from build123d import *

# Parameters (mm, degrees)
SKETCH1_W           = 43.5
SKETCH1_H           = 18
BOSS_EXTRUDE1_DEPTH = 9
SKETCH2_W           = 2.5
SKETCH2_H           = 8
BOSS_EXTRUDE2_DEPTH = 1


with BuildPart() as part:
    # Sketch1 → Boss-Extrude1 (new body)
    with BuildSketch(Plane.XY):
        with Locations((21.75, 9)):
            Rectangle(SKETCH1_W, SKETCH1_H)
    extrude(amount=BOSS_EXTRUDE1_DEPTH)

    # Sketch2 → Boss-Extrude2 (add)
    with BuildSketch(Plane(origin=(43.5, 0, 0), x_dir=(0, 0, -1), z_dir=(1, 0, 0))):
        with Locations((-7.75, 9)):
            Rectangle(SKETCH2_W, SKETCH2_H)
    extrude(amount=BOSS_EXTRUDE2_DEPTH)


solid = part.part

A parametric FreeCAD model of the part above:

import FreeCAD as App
import Part
import Sketcher
Q = App.Units.Quantity

doc = App.newDocument("Part")
body = doc.addObject("PartDesign::Body", "Body")

# Sketch on XY plane
sketch1 = body.newObject("Sketcher::SketchObject", "Sketch")
sketch1.AttachmentSupport = (doc.getObject("XY_Plane"), [""])
sketch1.MapMode = "FlatFace"
sketch1.addGeometry([
    Part.LineSegment(App.Vector(0, 18, 0), App.Vector(0, 0, 0)),
    Part.LineSegment(App.Vector(0, 0, 0), App.Vector(44, 0, 0)),
    Part.LineSegment(App.Vector(44, 0, 0), App.Vector(44, 18, 0)),
    Part.LineSegment(App.Vector(44, 18, 0), App.Vector(0, 18, 0)),
], False)
sketch1.addConstraint([
    Sketcher.Constraint("Coincident", 0, 2, 1, 1),
    Sketcher.Constraint("Coincident", 1, 2, 2, 1),
    Sketcher.Constraint("Coincident", 2, 2, 3, 1),
    Sketcher.Constraint("Coincident", 3, 2, 0, 1),
    Sketcher.Constraint("Vertical", 0),
    Sketcher.Constraint("Horizontal", 1),
    Sketcher.Constraint("Vertical", 2),
    Sketcher.Constraint("Horizontal", 3),
    Sketcher.Constraint("Coincident", 0, 2, -1, 1),
    Sketcher.Constraint("DistanceY", 0, 2, 0, 1, Q("18 mm")),
    Sketcher.Constraint("DistanceX", 1, 1, 1, 2, Q("43.5 mm")),
])
pad1 = body.newObject("PartDesign::Pad", "Pad")
pad1.Profile = sketch1
pad1.Length = 9

# Sketch on YZ plane
sketch2 = body.newObject("Sketcher::SketchObject", "Sketch001")
sketch2.AttachmentSupport = (doc.getObject("YZ_Plane"), [""])
sketch2.MapMode = "FlatFace"
sketch2.AttachmentOffset = App.Placement(App.Vector(0, 0, 43.5), App.Rotation())
sketch2.addGeometry([
    Part.LineSegment(App.Vector(13, 9, 0), App.Vector(5, 9, 0)),
    Part.LineSegment(App.Vector(5, 9, 0), App.Vector(5, 6.5, 0)),
    Part.LineSegment(App.Vector(5, 6.5, 0), App.Vector(13, 6.5, 0)),
    Part.LineSegment(App.Vector(13, 6.5, 0), App.Vector(13, 9, 0)),
], False)
sketch2.addConstraint([
    Sketcher.Constraint("Coincident", 0, 2, 1, 1),
    Sketcher.Constraint("Coincident", 1, 2, 2, 1),
    Sketcher.Constraint("Coincident", 2, 2, 3, 1),
    Sketcher.Constraint("Coincident", 3, 2, 0, 1),
    Sketcher.Constraint("Horizontal", 0),
    Sketcher.Constraint("Vertical", 1),
    Sketcher.Constraint("Horizontal", 2),
    Sketcher.Constraint("Vertical", 3),
    Sketcher.Constraint("DistanceX", 0, 2, 0, 1, Q("8 mm")),
    Sketcher.Constraint("DistanceY", 1, 2, 1, 1, Q("2.5 mm")),
    Sketcher.Constraint("DistanceX", -1, 1, 0, 2, Q("5 mm")),
    Sketcher.Constraint("DistanceY", -1, 1, 0, 2, Q("9 mm")),
])
pad2 = body.newObject("PartDesign::Pad", "Pad001")
pad2.Profile = sketch2
pad2.Length = 1

doc.recompute()
